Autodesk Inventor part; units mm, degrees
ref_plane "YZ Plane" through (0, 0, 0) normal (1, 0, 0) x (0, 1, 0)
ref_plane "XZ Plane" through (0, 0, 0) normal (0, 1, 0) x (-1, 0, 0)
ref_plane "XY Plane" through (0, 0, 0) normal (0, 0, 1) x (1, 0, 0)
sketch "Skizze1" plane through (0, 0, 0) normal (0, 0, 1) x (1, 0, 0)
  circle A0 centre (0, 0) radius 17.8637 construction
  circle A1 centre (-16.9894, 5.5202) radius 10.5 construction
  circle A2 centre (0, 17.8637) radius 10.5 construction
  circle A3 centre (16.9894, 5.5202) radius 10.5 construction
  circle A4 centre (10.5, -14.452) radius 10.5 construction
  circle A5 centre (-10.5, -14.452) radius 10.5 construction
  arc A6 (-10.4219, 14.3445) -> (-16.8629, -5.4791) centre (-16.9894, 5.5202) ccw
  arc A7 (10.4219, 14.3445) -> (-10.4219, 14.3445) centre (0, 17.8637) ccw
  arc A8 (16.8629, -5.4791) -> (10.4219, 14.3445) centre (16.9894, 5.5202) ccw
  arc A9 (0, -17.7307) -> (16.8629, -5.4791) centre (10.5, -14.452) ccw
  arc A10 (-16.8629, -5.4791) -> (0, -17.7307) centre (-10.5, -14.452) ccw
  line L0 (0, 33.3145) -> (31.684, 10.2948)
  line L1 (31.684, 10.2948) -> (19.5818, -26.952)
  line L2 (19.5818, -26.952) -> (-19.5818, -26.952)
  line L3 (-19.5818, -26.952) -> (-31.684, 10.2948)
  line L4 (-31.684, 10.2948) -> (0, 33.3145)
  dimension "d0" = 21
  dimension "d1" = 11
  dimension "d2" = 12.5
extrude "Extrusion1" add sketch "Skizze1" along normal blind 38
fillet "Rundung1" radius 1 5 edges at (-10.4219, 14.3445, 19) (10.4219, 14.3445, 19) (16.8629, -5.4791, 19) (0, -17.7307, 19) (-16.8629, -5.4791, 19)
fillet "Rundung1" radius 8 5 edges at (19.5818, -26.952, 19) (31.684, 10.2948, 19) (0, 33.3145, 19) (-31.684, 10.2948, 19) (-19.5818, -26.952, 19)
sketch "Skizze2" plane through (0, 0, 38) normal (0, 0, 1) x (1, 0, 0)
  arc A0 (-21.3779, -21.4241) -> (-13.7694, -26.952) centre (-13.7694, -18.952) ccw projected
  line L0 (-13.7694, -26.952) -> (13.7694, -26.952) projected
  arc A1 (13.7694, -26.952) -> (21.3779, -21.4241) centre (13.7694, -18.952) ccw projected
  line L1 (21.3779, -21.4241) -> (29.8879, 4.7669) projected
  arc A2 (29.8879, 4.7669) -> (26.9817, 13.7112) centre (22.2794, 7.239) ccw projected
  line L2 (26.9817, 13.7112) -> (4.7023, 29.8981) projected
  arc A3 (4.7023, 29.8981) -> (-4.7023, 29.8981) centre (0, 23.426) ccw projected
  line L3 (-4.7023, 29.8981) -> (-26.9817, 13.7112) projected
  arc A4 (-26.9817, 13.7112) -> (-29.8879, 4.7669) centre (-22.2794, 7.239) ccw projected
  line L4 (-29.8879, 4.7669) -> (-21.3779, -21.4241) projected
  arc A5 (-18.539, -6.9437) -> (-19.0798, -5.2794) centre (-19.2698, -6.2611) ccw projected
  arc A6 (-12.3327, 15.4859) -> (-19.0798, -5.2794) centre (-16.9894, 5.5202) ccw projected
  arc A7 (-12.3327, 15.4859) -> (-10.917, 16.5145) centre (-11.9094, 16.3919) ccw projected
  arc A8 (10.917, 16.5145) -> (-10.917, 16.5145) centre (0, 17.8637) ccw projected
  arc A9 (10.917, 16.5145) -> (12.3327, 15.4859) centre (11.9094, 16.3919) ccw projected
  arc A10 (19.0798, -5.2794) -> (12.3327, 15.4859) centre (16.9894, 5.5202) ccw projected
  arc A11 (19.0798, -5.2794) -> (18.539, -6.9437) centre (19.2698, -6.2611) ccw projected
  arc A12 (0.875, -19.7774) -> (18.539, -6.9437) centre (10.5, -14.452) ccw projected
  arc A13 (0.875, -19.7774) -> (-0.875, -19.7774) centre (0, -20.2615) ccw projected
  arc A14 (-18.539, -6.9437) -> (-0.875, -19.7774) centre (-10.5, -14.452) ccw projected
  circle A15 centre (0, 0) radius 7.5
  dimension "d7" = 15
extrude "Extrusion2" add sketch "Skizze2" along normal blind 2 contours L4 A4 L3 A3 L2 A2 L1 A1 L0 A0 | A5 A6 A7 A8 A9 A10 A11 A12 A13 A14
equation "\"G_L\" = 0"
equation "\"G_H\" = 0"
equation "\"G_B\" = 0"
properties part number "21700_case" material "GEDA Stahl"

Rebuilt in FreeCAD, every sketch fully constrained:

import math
import FreeCAD as App
import Part
import Sketcher

V = App.Vector
Q = App.Units.Quantity


def edges_at(feature, points):
    """Names of the edges that pass closest to the given points."""
    edges = feature.Shape.Edges
    near = lambda p: min(range(len(edges)), key=lambda i: edges[i].distToShape(Part.Vertex(*p))[0])
    return sorted({f"Edge{near(p) + 1}" for p in points})

doc = App.newDocument("Part")
params = doc.addObject("Spreadsheet::Sheet", "Params")
for row, (alias, value) in enumerate([
    ("sketch1_radius", "11 mm"),
    ("pad1_length", "38 mm"),
    ("fillet_radius", "1 mm"),
    ("fillet2_radius", "8 mm"),
    ("sketch2_diameter", "15 mm"),
    ("sketch2_radius", "8 mm"),
    ("pad2_length", "2 mm"),
], start=1):
    params.set(f"A{row}", alias)
    params.set(f"B{row}", "=" + value)
    params.setAlias(f"B{row}", alias)

body = doc.addObject("PartDesign::Body", "Body")

sketch1 = doc.addObject("Sketcher::SketchObject", "Sketch")
body.addObject(sketch1)
sketch1.AttachmentSupport = (doc.XY_Plane, [""])
sketch1.MapMode = "FlatFace"
sketch1.addGeometry([
    Part.LineSegment(V(32, 10, 0), V(0, 33, 0)),
    Part.LineSegment(V(0, 33, 0), V(-32, 10, 0)),
    Part.LineSegment(V(-32, 10, 0), V(-20, -27, 0)),
    Part.LineSegment(V(-20, -27, 0), V(20, -27, 0)),
    Part.LineSegment(V(20, -27, 0), V(32, 10, 0)),
    Part.ArcOfCircle(Part.Circle(V(-17, 6, 0), V(0, 0, 1), 11), math.radians(53), math.radians(271)),
    Part.ArcOfCircle(Part.Circle(V(0, 18, 0), V(0, 0, 1), 11), math.radians(-19), math.radians(199)),
    Part.ArcOfCircle(Part.Circle(V(17, 6, 0), V(0, 0, 1), 11), math.radians(-91), math.radians(127)),
    Part.ArcOfCircle(Part.Circle(V(10, -14, 0), V(0, 0, 1), 11), math.radians(-163), math.radians(55)),
    Part.ArcOfCircle(Part.Circle(V(-10, -14, 0), V(0, 0, 1), 11), math.radians(125), math.radians(343)),
], False)
sketch1.addConstraint([
    Sketcher.Constraint("Coincident", 0, 2, 1, 1),
    Sketcher.Constraint("Coincident", 1, 2, 2, 1),
    Sketcher.Constraint("Coincident", 2, 2, 3, 1),
    Sketcher.Constraint("Coincident", 3, 2, 4, 1),
    Sketcher.Constraint("Coincident", 4, 2, 0, 1),
    Sketcher.Constraint("Coincident", 5, 1, 6, 2),
    Sketcher.Constraint("Coincident", 6, 1, 7, 2),
    Sketcher.Constraint("Coincident", 7, 1, 8, 2),
    Sketcher.Constraint("Coincident", 8, 1, 9, 2),
    Sketcher.Constraint("Coincident", 9, 1, 5, 2),
    Sketcher.Constraint("Horizontal", 3),
    Sketcher.Constraint("Equal", 5, 6),
    Sketcher.Constraint("Equal", 6, 7),
    Sketcher.Constraint("Equal", 7, 8),
    Sketcher.Constraint("Equal", 8, 9),
    Sketcher.Constraint("Symmetric", 5, 3, 7, 3, -2),
    Sketcher.Constraint("Symmetric", 8, 3, 9, 3, -2),
    Sketcher.Constraint("Symmetric", 1, 2, 4, 2, -2),
    Sketcher.Constraint("PointOnObject", 6, 3, -2),
    Sketcher.Constraint("PointOnObject", 0, 2, -2),
    Sketcher.Constraint("Equal", 1, 2),
    Sketcher.Constraint("Equal", 2, 4),
    Sketcher.Constraint("Radius", 5, 11.0),
    Sketcher.Constraint("DistanceX", 9, 3, 8, 3, 21.0),
    Sketcher.Constraint("DistanceY", 2, 2, 9, 3, 12.5),
    Sketcher.Constraint("Angle", 0, Q("144 deg")),
    Sketcher.Constraint("Angle", 2, Q("-72 deg")),
    Sketcher.Constraint("DistanceY", 5, 1, 0, 2, 18.97),
    Sketcher.Constraint("DistanceX", 3, 1, 3, 2, 39.1636),
    Sketcher.Constraint("DistanceY", 8, 3, -1, 1, 14.452),
    Sketcher.Constraint("DistanceX", 5, 1, -1, 1, 10.422),
    Sketcher.Constraint("DistanceX", -1, 1, 7, 1, 16.863),
])
sketch1.setExpression("Constraints[22]", "Params.sketch1_radius")
pad1 = doc.addObject("PartDesign::Pad", "Pad")
body.addObject(pad1)
pad1.Profile = sketch1
pad1.setExpression("Length", "Params.pad1_length")
doc.recompute()

fillet = doc.addObject("PartDesign::Fillet", "Fillet")
body.addObject(fillet)
fillet.Base = (pad1, edges_at(pad1, [
    (-10.422, 14.345, 19),
    (10.422, 14.345, 19),
    (16.863, -5.479, 19),
    (0, -17.731, 19),
    (-16.863, -5.479, 19),
]))
fillet.setExpression("Radius", "Params.fillet_radius")
doc.recompute()

fillet2 = doc.addObject("PartDesign::Fillet", "Fillet001")
body.addObject(fillet2)
fillet2.Base = (fillet, edges_at(fillet, [
    (19.582, -26.952, 19),
    (31.684, 10.295, 19),
    (0, 33.315, 19),
    (-31.684, 10.295, 19),
    (-19.582, -26.952, 19),
]))
fillet2.setExpression("Radius", "Params.fillet2_radius")

sketch2 = doc.addObject("Sketcher::SketchObject", "Sketch001")
body.addObject(sketch2)
sketch2.AttachmentSupport = (doc.XY_Plane, [""])
sketch2.MapMode = "FlatFace"
sketch2.AttachmentOffset = App.Placement(V(0, 0, 38), App.Rotation())
sketch2.addGeometry([
    Part.LineSegment(V(-30, 5, 0), V(-21, -21, 0)),
    Part.ArcOfCircle(Part.Circle(V(-14, -19, 0), V(0, 0, 1), 8), math.radians(-162), math.radians(-90)),
    Part.LineSegment(V(-14, -27, 0), V(14, -27, 0)),
    Part.ArcOfCircle(Part.Circle(V(14, -19, 0), V(0, 0, 1), 8), math.radians(-90), math.radians(-18)),
    Part.LineSegment(V(21, -21, 0), V(30, 5, 0)),
    Part.ArcOfCircle(Part.Circle(V(22, 7, 0), V(0, 0, 1), 8), math.radians(-18), math.radians(54)),
    Part.LineSegment(V(27, 14, 0), V(5, 30, 0)),
    Part.ArcOfCircle(Part.Circle(V(0, 23, 0), V(0, 0, 1), 8), math.radians(54), math.radians(126)),
    Part.LineSegment(V(-5, 30, 0), V(-27, 14, 0)),
    Part.ArcOfCircle(Part.Circle(V(-22, 7, 0), V(0, 0, 1), 8), math.radians(126), math.radians(198)),
    Part.Circle(V(0, 0, 0), V(0, 0, 1), 8),
], False)
sketch2.addConstraint([
    Sketcher.Constraint("Tangent", 0, 2, 1, 1),
    Sketcher.Constraint("Tangent", 1, 2, 2, 1),
    Sketcher.Constraint("Tangent", 2, 2, 3, 1),
    Sketcher.Constraint("Tangent", 3, 2, 4, 1),
    Sketcher.Constraint("Tangent", 4, 2, 5, 1),
    Sketcher.Constraint("Tangent", 5, 2, 6, 1),
    Sketcher.Constraint("Tangent", 6, 2, 7, 1),
    Sketcher.Constraint("Tangent", 7, 2, 8, 1),
    Sketcher.Constraint("Tangent", 8, 2, 9, 1),
    Sketcher.Constraint("Tangent", 9, 2, 0, 1),
    Sketcher.Constraint("Horizontal", 2),
    Sketcher.Constraint("Coincident", 10, 3, -1, 1),
    Sketcher.Constraint("Equal", 1, 3),
    Sketcher.Constraint("Equal", 3, 5),
    Sketcher.Constraint("Equal", 5, 7),
    Sketcher.Constraint("Equal", 7, 9),
    Sketcher.Constraint("Symmetric", 5, 3, 9, 3, -2),
    Sketcher.Constraint("PointOnObject", 7, 3, -2),
    Sketcher.Constraint("Horizontal", 0, 2, 3, 2),
    Sketcher.Constraint("Equal", 4, 6),
    Sketcher.Constraint("Diameter", 10, 15.0),
    Sketcher.Constraint("Radius", 1, 8.0),
    Sketcher.Constraint("Angle", 0, Q("-72 deg")),
    Sketcher.Constraint("Angle", 6, Q("144 deg")),
    Sketcher.Constraint("DistanceX", 3, 3, 5, 3, 8.51),
    Sketcher.Constraint("DistanceY", 1, 3, -1, 1, 18.952),
])
sketch2.setExpression("Constraints[20]", "Params.sketch2_diameter")
sketch2.setExpression("Constraints[21]", "Params.sketch2_radius")
pad2 = doc.addObject("PartDesign::Pad", "Pad001")
body.addObject(pad2)
pad2.Profile = sketch2
pad2.setExpression("Length", "Params.pad2_length")

doc.recompute()
